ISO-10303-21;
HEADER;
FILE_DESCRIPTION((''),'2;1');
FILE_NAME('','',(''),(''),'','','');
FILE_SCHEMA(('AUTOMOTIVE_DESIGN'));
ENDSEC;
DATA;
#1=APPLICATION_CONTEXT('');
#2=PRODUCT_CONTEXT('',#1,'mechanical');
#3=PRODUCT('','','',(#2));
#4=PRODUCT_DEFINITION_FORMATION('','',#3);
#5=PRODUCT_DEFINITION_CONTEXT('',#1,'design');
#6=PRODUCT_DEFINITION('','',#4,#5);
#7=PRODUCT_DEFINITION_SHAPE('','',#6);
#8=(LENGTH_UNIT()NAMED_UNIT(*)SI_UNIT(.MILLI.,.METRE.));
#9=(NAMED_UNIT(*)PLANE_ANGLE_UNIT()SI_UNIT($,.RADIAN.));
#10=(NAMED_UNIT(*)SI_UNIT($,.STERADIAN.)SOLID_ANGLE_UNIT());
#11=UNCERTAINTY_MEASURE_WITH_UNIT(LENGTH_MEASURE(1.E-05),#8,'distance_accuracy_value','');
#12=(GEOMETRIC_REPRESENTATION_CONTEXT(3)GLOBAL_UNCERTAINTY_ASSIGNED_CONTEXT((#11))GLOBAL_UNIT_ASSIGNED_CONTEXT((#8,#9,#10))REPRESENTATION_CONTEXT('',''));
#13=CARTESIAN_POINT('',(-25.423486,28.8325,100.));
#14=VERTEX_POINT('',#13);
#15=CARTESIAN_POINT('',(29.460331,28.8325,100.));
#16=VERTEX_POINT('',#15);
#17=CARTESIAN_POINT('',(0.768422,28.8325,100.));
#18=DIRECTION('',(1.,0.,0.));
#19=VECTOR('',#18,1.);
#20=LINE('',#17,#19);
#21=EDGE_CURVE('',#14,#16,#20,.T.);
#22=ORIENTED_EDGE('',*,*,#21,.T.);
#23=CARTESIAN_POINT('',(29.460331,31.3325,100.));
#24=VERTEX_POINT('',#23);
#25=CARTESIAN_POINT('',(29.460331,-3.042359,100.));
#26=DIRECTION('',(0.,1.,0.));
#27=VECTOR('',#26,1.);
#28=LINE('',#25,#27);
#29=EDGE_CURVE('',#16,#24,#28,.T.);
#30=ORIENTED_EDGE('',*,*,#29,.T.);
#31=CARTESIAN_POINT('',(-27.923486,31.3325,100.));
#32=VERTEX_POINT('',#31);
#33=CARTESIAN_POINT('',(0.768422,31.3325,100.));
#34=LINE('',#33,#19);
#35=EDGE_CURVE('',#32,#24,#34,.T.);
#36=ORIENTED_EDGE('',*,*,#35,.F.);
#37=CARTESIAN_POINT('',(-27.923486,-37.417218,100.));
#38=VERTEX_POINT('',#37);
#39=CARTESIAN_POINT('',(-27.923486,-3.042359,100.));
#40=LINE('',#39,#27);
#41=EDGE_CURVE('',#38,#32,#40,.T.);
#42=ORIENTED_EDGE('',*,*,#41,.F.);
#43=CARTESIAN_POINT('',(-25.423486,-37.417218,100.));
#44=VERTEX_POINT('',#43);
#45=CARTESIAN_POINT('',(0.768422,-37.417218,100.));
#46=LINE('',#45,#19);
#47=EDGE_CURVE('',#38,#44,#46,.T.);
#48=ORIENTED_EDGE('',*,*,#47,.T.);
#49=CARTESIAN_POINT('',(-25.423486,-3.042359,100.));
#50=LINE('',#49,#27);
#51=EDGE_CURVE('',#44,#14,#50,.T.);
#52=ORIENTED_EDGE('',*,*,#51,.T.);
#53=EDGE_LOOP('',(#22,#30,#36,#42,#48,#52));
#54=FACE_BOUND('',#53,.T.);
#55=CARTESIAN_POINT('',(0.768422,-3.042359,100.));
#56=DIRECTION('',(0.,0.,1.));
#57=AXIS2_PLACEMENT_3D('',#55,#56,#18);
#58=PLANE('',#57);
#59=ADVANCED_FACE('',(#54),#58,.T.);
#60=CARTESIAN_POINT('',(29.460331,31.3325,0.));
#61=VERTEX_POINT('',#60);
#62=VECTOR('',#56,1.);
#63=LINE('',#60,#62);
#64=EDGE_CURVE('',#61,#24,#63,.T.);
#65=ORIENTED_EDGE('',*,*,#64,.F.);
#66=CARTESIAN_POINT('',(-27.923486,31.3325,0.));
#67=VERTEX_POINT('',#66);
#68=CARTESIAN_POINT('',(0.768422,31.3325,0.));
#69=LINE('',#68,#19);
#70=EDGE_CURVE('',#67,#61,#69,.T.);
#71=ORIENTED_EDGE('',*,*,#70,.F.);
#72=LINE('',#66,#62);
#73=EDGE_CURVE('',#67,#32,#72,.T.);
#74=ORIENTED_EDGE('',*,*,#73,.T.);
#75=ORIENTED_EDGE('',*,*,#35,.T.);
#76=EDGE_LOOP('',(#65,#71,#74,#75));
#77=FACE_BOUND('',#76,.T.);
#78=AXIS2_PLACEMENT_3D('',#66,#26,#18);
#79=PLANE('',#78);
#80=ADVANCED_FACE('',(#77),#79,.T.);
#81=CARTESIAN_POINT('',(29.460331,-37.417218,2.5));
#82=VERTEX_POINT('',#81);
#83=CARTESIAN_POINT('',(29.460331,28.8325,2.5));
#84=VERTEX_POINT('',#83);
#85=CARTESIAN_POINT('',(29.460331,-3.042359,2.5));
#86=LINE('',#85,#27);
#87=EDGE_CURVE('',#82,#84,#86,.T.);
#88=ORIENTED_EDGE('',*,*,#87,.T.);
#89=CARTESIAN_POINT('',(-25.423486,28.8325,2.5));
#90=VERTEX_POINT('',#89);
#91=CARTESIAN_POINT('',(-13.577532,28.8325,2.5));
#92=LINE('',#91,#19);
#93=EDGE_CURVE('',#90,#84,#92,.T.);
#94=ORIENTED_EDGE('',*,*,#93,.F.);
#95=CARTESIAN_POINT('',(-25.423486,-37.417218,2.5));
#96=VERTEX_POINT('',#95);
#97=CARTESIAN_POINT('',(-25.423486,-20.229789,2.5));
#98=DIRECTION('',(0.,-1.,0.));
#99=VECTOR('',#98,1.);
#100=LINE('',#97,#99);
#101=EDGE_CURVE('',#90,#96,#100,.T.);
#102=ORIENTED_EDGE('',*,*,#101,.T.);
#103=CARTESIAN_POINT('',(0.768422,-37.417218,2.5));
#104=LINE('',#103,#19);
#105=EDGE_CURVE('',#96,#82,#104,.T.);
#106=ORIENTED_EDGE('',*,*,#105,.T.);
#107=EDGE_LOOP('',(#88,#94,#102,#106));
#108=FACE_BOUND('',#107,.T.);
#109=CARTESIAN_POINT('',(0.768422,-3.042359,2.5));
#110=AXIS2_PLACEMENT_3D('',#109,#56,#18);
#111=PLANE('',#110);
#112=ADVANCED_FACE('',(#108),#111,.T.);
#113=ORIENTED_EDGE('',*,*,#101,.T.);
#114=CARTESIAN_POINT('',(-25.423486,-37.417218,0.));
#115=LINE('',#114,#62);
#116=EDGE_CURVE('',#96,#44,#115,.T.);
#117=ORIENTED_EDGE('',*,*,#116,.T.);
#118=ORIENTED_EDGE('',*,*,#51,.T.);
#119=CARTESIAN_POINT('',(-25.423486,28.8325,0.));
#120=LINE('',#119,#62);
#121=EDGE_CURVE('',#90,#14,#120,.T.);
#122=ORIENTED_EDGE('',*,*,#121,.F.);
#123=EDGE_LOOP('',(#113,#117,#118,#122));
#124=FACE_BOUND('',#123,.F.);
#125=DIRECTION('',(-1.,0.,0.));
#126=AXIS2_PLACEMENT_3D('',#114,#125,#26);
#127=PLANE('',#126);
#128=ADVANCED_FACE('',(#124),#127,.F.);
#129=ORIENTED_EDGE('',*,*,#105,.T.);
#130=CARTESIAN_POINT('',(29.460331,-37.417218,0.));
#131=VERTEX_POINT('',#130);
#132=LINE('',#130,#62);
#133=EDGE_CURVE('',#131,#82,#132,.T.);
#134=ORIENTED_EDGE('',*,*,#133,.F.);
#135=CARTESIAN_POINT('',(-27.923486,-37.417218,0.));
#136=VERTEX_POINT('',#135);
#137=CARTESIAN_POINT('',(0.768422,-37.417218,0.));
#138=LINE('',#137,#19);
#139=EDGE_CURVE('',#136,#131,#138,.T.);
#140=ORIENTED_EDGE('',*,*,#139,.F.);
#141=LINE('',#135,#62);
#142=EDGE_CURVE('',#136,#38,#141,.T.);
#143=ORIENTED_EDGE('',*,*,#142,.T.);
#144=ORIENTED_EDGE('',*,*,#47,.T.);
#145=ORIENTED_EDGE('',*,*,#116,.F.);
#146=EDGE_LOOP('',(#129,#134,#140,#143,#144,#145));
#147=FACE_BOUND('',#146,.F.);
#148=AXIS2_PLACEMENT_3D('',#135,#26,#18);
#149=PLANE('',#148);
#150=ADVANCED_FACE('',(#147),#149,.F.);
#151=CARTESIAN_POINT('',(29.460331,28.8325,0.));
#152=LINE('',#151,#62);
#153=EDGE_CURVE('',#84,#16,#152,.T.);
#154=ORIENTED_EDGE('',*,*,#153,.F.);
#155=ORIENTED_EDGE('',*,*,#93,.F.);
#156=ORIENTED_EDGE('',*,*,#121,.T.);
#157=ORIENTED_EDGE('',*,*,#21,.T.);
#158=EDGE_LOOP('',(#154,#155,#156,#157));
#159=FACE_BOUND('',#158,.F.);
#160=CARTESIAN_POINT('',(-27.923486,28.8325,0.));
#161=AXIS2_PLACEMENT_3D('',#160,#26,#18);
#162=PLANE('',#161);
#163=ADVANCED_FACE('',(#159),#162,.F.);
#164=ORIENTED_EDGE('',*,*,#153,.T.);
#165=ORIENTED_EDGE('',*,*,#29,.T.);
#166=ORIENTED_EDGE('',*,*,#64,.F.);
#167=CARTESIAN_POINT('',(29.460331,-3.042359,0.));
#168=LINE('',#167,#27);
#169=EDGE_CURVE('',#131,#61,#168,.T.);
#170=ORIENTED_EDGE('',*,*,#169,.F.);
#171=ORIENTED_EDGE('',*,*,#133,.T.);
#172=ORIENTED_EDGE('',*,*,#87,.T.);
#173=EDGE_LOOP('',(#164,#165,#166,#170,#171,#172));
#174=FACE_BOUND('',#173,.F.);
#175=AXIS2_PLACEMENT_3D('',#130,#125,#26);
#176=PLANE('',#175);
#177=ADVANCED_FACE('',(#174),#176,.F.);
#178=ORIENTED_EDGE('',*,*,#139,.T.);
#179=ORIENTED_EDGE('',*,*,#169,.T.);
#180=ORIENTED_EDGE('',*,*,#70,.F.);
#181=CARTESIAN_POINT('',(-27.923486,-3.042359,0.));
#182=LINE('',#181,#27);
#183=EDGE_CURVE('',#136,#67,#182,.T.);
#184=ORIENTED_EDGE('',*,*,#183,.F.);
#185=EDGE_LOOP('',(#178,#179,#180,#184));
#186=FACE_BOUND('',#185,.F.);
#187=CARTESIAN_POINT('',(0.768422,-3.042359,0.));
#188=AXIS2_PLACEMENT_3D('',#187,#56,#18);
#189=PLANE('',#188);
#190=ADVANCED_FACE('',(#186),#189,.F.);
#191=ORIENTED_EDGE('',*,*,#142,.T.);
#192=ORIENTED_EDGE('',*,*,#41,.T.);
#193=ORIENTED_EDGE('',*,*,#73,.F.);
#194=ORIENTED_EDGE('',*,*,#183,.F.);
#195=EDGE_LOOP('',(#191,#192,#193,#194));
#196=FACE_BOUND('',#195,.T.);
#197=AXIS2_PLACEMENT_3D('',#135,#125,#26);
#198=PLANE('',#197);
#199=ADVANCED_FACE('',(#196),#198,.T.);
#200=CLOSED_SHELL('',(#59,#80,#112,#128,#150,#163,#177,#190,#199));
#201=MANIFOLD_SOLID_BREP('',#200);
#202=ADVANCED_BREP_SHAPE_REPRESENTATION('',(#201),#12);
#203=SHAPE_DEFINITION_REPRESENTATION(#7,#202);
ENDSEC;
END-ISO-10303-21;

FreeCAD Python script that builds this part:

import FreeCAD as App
import Part
import Sketcher


def faces_at(feature, points):
    """Names of the faces that lie closest to the given points."""
    faces = feature.Shape.Faces
    near = lambda p: min(range(len(faces)), key=lambda i: faces[i].distToShape(Part.Vertex(*p))[0])
    return sorted({f"Face{near(p) + 1}" for p in points})


def add_polygon(sketch, points):
    """Adds a closed chain of lines whose ends are joined by coincident constraints."""
    first, n = sketch.GeometryCount, len(points)
    for a, b in zip(points, points[1:] + points[:1]):
        sketch.addGeometry(Part.LineSegment(App.Vector(*a, 0), App.Vector(*b, 0)), False)
    for i in range(n):
        sketch.addConstraint(Sketcher.Constraint("Coincident", first + i, 2, first + (i + 1) % n, 1))

doc = App.newDocument("Part")
body = doc.addObject("PartDesign::Body", "Body")

# Sketch on XY plane
sketch1 = body.newObject("Sketcher::SketchObject", "Sketch")
sketch1.AttachmentSupport = (doc.getObject("XY_Plane"), [""])
sketch1.MapMode = "FlatFace"
add_polygon(sketch1, [(-28, 31), (-28, -37), (29, -37), (29, 31)])  # lines 0-3
sketch1.addConstraint([
    Sketcher.Constraint("Vertical", 0),
    Sketcher.Constraint("Horizontal", 1),
    Sketcher.Constraint("Vertical", 2),
    Sketcher.Constraint("Horizontal", 3),
    Sketcher.Constraint("DistanceY", 0, 2, 0, 1, 68.749718),
    Sketcher.Constraint("DistanceY", -1, 1, 2, 2, 31.3325),
    Sketcher.Constraint("DistanceX", 1, 1, 1, 2, 57.383817),
    Sketcher.Constraint("DistanceX", -1, 1, 1, 2, 29.460331),
])
pad1 = body.newObject("PartDesign::Pad", "Pad")
pad1.Profile = sketch1
pad1.Length = 100
doc.recompute()

thickness = body.newObject("PartDesign::Thickness", "Thickness")
thickness.Base = (pad1, faces_at(pad1, [(0.768, -3.042, 100), (29.46, -3.042, 50), (0.768, -37.417, 50)]))
thickness.Value = 2.5
thickness.Reversed = True
thickness.Join = "Arc"

doc.recompute()
